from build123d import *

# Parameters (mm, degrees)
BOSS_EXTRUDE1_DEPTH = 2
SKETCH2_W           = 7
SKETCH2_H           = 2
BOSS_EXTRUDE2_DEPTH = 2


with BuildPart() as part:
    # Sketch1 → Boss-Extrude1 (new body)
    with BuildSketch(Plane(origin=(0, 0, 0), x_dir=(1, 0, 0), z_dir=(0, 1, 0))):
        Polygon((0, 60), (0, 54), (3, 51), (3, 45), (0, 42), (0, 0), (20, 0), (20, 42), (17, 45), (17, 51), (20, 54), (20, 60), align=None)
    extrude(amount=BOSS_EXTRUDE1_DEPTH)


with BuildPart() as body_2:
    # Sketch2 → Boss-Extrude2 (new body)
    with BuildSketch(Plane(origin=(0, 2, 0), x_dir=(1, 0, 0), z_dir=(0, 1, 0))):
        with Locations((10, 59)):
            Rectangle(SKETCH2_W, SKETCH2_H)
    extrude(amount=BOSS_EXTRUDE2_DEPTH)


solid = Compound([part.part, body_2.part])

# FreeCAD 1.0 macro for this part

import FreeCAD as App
import Part
import Sketcher
from FreeCAD import Vector

doc = App.newDocument("Part")
body = doc.addObject("PartDesign::Body", "Body")

# Sketch on XZ plane
sketch1 = body.newObject("Sketcher::SketchObject", "Sketch")
sketch1.AttachmentSupport = (doc.getObject("XZ_Plane"), [""])
sketch1.MapMode = "FlatFace"
sketch1.addGeometry([
    Part.LineSegment(Vector(0, -60, 0), Vector(0, -54, 0)),  # 0
    Part.LineSegment(Vector(0, -54, 0), Vector(3, -51, 0)),  # 1
    Part.LineSegment(Vector(3, -51, 0), Vector(3, -45, 0)),  # 2
    Part.LineSegment(Vector(3, -45, 0), Vector(0, -42, 0)),  # 3
    Part.LineSegment(Vector(0, -42, 0), Vector(0, 0, 0)),  # 4
    Part.LineSegment(Vector(0, 0, 0), Vector(20, 0, 0)),  # 5
    Part.LineSegment(Vector(20, 0, 0), Vector(20, -42, 0)),  # 6
    Part.LineSegment(Vector(20, -42, 0), Vector(17, -45, 0)),  # 7
    Part.LineSegment(Vector(17, -45, 0), Vector(17, -51, 0)),  # 8
    Part.LineSegment(Vector(17, -51, 0), Vector(20, -54, 0)),  # 9
    Part.LineSegment(Vector(20, -54, 0), Vector(20, -60, 0)),  # 10
    Part.LineSegment(Vector(20, -60, 0), Vector(0, -60, 0)),  # 11
], False)
sketch1.addConstraint([
    Sketcher.Constraint("Coincident", 0, 2, 1, 1),
    Sketcher.Constraint("Coincident", 1, 2, 2, 1),
    Sketcher.Constraint("Coincident", 2, 2, 3, 1),
    Sketcher.Constraint("Coincident", 3, 2, 4, 1),
    Sketcher.Constraint("Coincident", 4, 2, 5, 1),
    Sketcher.Constraint("Coincident", 5, 2, 6, 1),
    Sketcher.Constraint("Coincident", 6, 2, 7, 1),
    Sketcher.Constraint("Coincident", 7, 2, 8, 1),
    Sketcher.Constraint("Coincident", 8, 2, 9, 1),
    Sketcher.Constraint("Coincident", 9, 2, 10, 1),
    Sketcher.Constraint("Coincident", 10, 2, 11, 1),
    Sketcher.Constraint("Coincident", 11, 2, 0, 1),
    Sketcher.Constraint("Vertical", 0),
    Sketcher.Constraint("Vertical", 2),
    Sketcher.Constraint("Vertical", 4),
    Sketcher.Constraint("Horizontal", 5),
    Sketcher.Constraint("Vertical", 6),
    Sketcher.Constraint("Vertical", 8),
    Sketcher.Constraint("Vertical", 10),
    Sketcher.Constraint("Horizontal", 11),
    Sketcher.Constraint("Coincident", 4, 2, -1, 1),
    Sketcher.Constraint("PointOnObject", 0, 2, -2),
    Sketcher.Constraint("Perpendicular", 1, 3),
    Sketcher.Constraint("Perpendicular", 3, 7),
    Sketcher.Constraint("Perpendicular", 7, 9),
    Sketcher.Constraint("Horizontal", 3, 2, 6, 2),
    Sketcher.Constraint("Horizontal", 2, 2, 7, 2),
    Sketcher.Constraint("Horizontal", 1, 2, 8, 2),
    Sketcher.Constraint("Horizontal", 0, 2, 9, 2),
    Sketcher.Constraint("Vertical", 6, 2, 9, 2),
    Sketcher.Constraint("Equal", 0, 2),
    Sketcher.Constraint("DistanceX", 5, 1, 5, 2, 20.0),
    Sketcher.Constraint("DistanceY", 0, 1, 0, 2, 6.0),
    Sketcher.Constraint("DistanceY", 4, 1, 4, 2, 42.0),
    Sketcher.Constraint("DistanceY", 0, 2, -1, 1, 54.0),
])
pad1 = body.newObject("PartDesign::Pad", "Pad")
pad1.Profile = sketch1
pad1.Length = 2
pad1.Reversed = True
body2 = doc.addObject("PartDesign::Body", "Body001")

# Sketch on XZ plane
sketch2 = body2.newObject("Sketcher::SketchObject", "Sketch001")
sketch2.AttachmentSupport = (doc.getObject("XZ_Plane001"), [""])
sketch2.MapMode = "FlatFace"
sketch2.AttachmentOffset = App.Placement(Vector(0, 0, -2), App.Rotation())
sketch2.addGeometry([
    Part.LineSegment(Vector(6.5, -60, 0), Vector(6.5, -58, 0)),
    Part.LineSegment(Vector(6.5, -58, 0), Vector(13.5, -58, 0)),
    Part.LineSegment(Vector(13.5, -58, 0), Vector(13.5, -60, 0)),
    Part.LineSegment(Vector(13.5, -60, 0), Vector(6.5, -60, 0)),
], False)
sketch2.addConstraint([
    Sketcher.Constraint("Coincident", 0, 2, 1, 1),
    Sketcher.Constraint("Coincident", 1, 2, 2, 1),
    Sketcher.Constraint("Coincident", 2, 2, 3, 1),
    Sketcher.Constraint("Coincident", 3, 2, 0, 1),
    Sketcher.Constraint("Vertical", 0),
    Sketcher.Constraint("Horizontal", 1),
    Sketcher.Constraint("Vertical", 2),
    Sketcher.Constraint("Horizontal", 3),
    Sketcher.Constraint("DistanceX", 1, 1, 1, 2, 7.0),
    Sketcher.Constraint("DistanceY", 0, 1, 0, 2, 2.0),
    Sketcher.Constraint("DistanceY", 0, 2, -1, 1, 58.0),
    Sketcher.Constraint("DistanceX", -1, 1, 0, 2, 6.5),
])
pad2 = body2.newObject("PartDesign::Pad", "Pad001")
pad2.Profile = sketch2
pad2.Length = 2
pad2.Reversed = True

doc.recompute()
